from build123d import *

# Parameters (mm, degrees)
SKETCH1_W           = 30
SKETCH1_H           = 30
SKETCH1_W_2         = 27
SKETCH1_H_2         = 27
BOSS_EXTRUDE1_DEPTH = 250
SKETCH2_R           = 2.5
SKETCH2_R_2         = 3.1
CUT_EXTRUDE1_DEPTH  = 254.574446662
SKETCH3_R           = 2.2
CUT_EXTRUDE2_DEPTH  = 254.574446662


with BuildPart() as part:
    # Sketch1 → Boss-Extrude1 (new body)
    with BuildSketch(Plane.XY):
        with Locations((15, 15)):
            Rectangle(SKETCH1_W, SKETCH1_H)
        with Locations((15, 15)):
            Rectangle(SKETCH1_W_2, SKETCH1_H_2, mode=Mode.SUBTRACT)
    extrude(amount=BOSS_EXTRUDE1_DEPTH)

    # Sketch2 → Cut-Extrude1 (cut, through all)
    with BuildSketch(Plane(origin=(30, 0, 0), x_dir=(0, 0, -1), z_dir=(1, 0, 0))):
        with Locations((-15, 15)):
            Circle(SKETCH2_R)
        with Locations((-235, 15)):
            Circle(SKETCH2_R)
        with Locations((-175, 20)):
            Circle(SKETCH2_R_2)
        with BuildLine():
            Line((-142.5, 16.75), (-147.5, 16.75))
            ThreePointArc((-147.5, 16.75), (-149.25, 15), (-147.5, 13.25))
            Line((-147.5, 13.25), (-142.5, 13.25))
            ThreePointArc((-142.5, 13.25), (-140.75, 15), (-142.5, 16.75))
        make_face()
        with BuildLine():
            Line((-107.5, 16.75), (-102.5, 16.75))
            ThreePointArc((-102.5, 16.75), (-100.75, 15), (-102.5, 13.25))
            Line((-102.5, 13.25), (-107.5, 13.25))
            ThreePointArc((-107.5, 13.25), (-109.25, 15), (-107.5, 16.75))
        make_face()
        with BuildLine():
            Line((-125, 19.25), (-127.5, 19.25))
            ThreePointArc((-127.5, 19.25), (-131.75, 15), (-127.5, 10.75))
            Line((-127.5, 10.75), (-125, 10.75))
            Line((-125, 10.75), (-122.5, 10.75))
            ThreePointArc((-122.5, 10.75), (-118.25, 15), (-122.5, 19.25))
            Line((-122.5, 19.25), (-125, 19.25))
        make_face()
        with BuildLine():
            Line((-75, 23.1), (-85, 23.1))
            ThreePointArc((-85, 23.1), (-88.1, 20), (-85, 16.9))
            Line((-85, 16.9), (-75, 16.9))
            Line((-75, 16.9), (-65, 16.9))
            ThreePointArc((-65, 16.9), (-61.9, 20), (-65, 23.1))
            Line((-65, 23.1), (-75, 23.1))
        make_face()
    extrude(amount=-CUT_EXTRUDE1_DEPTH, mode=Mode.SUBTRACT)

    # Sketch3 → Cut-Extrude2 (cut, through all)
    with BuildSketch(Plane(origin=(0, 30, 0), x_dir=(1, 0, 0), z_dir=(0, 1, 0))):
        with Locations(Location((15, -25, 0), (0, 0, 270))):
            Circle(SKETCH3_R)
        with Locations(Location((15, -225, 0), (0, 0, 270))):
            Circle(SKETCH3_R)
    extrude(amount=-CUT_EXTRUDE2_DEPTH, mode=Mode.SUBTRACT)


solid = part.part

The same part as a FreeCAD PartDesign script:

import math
import FreeCAD as App
import Part
import Sketcher

V = App.Vector


def add_polygon(sketch, points):
    """Adds a closed chain of lines whose ends are joined by coincident constraints."""
    first, n = sketch.GeometryCount, len(points)
    for a, b in zip(points, points[1:] + points[:1]):
        sketch.addGeometry(Part.LineSegment(App.Vector(*a, 0), App.Vector(*b, 0)), False)
    for i in range(n):
        sketch.addConstraint(Sketcher.Constraint("Coincident", first + i, 2, first + (i + 1) % n, 1))

doc = App.newDocument("Part")
body = doc.addObject("PartDesign::Body", "Body")

# Sketch on XY plane
sketch1 = body.newObject("Sketcher::SketchObject", "Sketch")
sketch1.AttachmentSupport = (doc.getObject("XY_Plane"), [""])
sketch1.MapMode = "FlatFace"
add_polygon(sketch1, [(0, 30), (0, 0), (30, 0), (30, 30)])  # lines 0-3
add_polygon(sketch1, [(28, 2), (2, 2), (2, 28), (28, 28)])  # lines 4-7
sketch1.addConstraint([
    Sketcher.Constraint("Vertical", 0),
    Sketcher.Constraint("Horizontal", 1),
    Sketcher.Constraint("Vertical", 2),
    Sketcher.Constraint("Horizontal", 3),
    Sketcher.Constraint("Horizontal", 4),
    Sketcher.Constraint("Vertical", 5),
    Sketcher.Constraint("Horizontal", 6),
    Sketcher.Constraint("Vertical", 7),
    Sketcher.Constraint("Coincident", 0, 2, -1, 1),
    Sketcher.Constraint("Equal", 3, 0),
    Sketcher.Constraint("Equal", 6, 5),
    Sketcher.Constraint("DistanceX", 1, 1, 1, 2, 30.0),
    Sketcher.Constraint("DistanceX", 4, 2, 4, 1, 27.0),
    Sketcher.Constraint("DistanceX", -1, 1, 4, 2, 1.5),
    Sketcher.Constraint("DistanceY", -1, 1, 4, 2, 1.5),
])
pad1 = body.newObject("PartDesign::Pad", "Pad")
pad1.Profile = sketch1
pad1.Length = 250

# Sketch on YZ plane
sketch2 = body.newObject("Sketcher::SketchObject", "Sketch001")
sketch2.AttachmentSupport = (doc.getObject("YZ_Plane"), [""])
sketch2.MapMode = "FlatFace"
sketch2.AttachmentOffset = App.Placement(V(0, 0, 30), App.Rotation())
sketch2.addGeometry([
    Part.Circle(V(15, 15, 0), V(0, 0, 1), 2.5),  # 0
    Part.Circle(V(15, 235, 0), V(0, 0, 1), 2.5),  # 1
    Part.Circle(V(20, 175, 0), V(0, 0, 1), 3.1),  # 2
    Part.LineSegment(V(16.8, 142.5, 0), V(16.8, 147.5, 0)),  # 3
    Part.ArcOfCircle(Part.Circle(V(15, 147.5, 0), V(0, 0, 1), 1.8), math.radians(0), math.radians(180)),  # 4
    Part.LineSegment(V(13.2, 147.5, 0), V(13.2, 142.5, 0)),  # 5
    Part.ArcOfCircle(Part.Circle(V(15, 142.5, 0), V(0, 0, 1), 1.8), math.radians(180), math.radians(360)),  # 6
    Part.LineSegment(V(16.8, 102.5, 0), V(16.8, 107.5, 0)),  # 7
    Part.ArcOfCircle(Part.Circle(V(15, 107.5, 0), V(0, 0, 1), 1.8), math.radians(0), math.radians(180)),  # 8
    Part.LineSegment(V(13.2, 107.5, 0), V(13.2, 102.5, 0)),  # 9
    Part.ArcOfCircle(Part.Circle(V(15, 102.5, 0), V(0, 0, 1), 1.8), math.radians(180), math.radians(360)),  # 10
    Part.ArcOfCircle(Part.Circle(V(15, 127.5, 0), V(0, 0, 1), 4.2), math.radians(0), math.radians(180)),  # 11
    Part.LineSegment(V(10.8, 127.5, 0), V(10.8, 122.5, 0)),  # 12
    Part.ArcOfCircle(Part.Circle(V(15, 122.5, 0), V(0, 0, 1), 4.2), math.radians(180), math.radians(360)),  # 13
    Part.LineSegment(V(19.2, 122.5, 0), V(19.2, 127.5, 0)),  # 14
    Part.ArcOfCircle(Part.Circle(V(20, 85, 0), V(0, 0, 1), 3.1), math.radians(0), math.radians(180)),  # 15
    Part.LineSegment(V(16.9, 85, 0), V(16.9, 65, 0)),  # 16
    Part.ArcOfCircle(Part.Circle(V(20, 65, 0), V(0, 0, 1), 3.1), math.radians(180), math.radians(360)),  # 17
    Part.LineSegment(V(23.1, 65, 0), V(23.1, 85, 0)),  # 18
], False)
sketch2.addConstraint([
    Sketcher.Constraint("Tangent", 3, 2, 4, 1),
    Sketcher.Constraint("Tangent", 4, 2, 5, 1),
    Sketcher.Constraint("Tangent", 5, 2, 6, 1),
    Sketcher.Constraint("Tangent", 6, 2, 3, 1),
    Sketcher.Constraint("Tangent", 7, 2, 8, 1),
    Sketcher.Constraint("Tangent", 8, 2, 9, 1),
    Sketcher.Constraint("Tangent", 9, 2, 10, 1),
    Sketcher.Constraint("Tangent", 10, 2, 7, 1),
    Sketcher.Constraint("Tangent", 11, 2, 12, 1),
    Sketcher.Constraint("Tangent", 12, 2, 13, 1),
    Sketcher.Constraint("Tangent", 13, 2, 14, 1),
    Sketcher.Constraint("Tangent", 14, 2, 11, 1),
    Sketcher.Constraint("Tangent", 15, 2, 16, 1),
    Sketcher.Constraint("Tangent", 16, 2, 17, 1),
    Sketcher.Constraint("Tangent", 17, 2, 18, 1),
    Sketcher.Constraint("Tangent", 18, 2, 15, 1),
    Sketcher.Constraint("Vertical", 3),
    Sketcher.Constraint("Vertical", 5),
    Sketcher.Constraint("Vertical", 7),
    Sketcher.Constraint("Vertical", 9),
    Sketcher.Constraint("Vertical", 12),
    Sketcher.Constraint("Vertical", 14),
    Sketcher.Constraint("Vertical", 16),
    Sketcher.Constraint("Vertical", 18),
    Sketcher.Constraint("Equal", 0, 1),
    Sketcher.Constraint("Equal", 6, 8),
    Sketcher.Constraint("Equal", 2, 15),
    Sketcher.Constraint("Vertical", 0, 3, 1, 3),
    Sketcher.Constraint("Vertical", 1, 3, 4, 3),
    Sketcher.Constraint("Vertical", 6, 3, 8, 3),
    Sketcher.Constraint("Vertical", 10, 3, 11, 3),
    Sketcher.Constraint("Vertical", 2, 3, 15, 3),
    Sketcher.Constraint("Equal", 5, 7),
    Sketcher.Constraint("Equal", 9, 12),
    Sketcher.Constraint("Diameter", 0, 5.0),
    Sketcher.Constraint("Diameter", 2, 6.2),
    Sketcher.Constraint("DistanceY", 3, 1, 3, 2, 5.0),
    Sketcher.Constraint("DistanceY", 16, 2, 16, 1, 20.0),
    Sketcher.Constraint("Radius", 4, 1.75),
    Sketcher.Constraint("Radius", 11, 4.25),
    Sketcher.Constraint("DistanceX", -1, 1, 0, 3, 15.0),
    Sketcher.Constraint("DistanceY", -1, 1, 0, 3, 15.0),
    Sketcher.Constraint("DistanceY", -1, 1, 1, 3, 235.0),
    Sketcher.Constraint("DistanceX", -1, 1, 2, 3, 20.0),
    Sketcher.Constraint("DistanceY", -1, 1, 2, 3, 175.0),
    Sketcher.Constraint("DistanceY", -1, 1, 15, 3, 85.0),
    Sketcher.Constraint("DistanceY", 8, 3, 6, 3, 35.0),
    Sketcher.Constraint("DistanceY", 11, 3, 6, 3, 15.0),
    Sketcher.Constraint("DistanceY", -1, 1, 4, 3, 147.5),
])
pocket1 = body.newObject("PartDesign::Pocket", "Pocket")
pocket1.Profile = sketch2
pocket1.Type = "ThroughAll"

# Sketch on XZ plane
sketch3 = body.newObject("Sketcher::SketchObject", "Sketch002")
sketch3.AttachmentSupport = (doc.getObject("XZ_Plane"), [""])
sketch3.MapMode = "FlatFace"
sketch3.AttachmentOffset = App.Placement(V(0, 0, -30), App.Rotation())
sketch3.addGeometry([
    Part.Circle(V(15, 25, 0), V(0, 0, 1), 2.2),
    Part.Circle(V(15, 225, 0), V(0, 0, 1), 2.2),
], False)
sketch3.addConstraint([
    Sketcher.Constraint("Equal", 0, 1),
    Sketcher.Constraint("Vertical", 0, 3, 1, 3),
    Sketcher.Constraint("Diameter", 0, 4.4),
    Sketcher.Constraint("DistanceX", -1, 1, 0, 3, 15.0),
    Sketcher.Constraint("DistanceY", -1, 1, 0, 3, 25.0),
    Sketcher.Constraint("DistanceY", -1, 1, 1, 3, 225.0),
])
pocket2 = body.newObject("PartDesign::Pocket", "Pocket001")
pocket2.Profile = sketch3
pocket2.Type = "ThroughAll"
pocket2.Reversed = True

doc.recompute()
